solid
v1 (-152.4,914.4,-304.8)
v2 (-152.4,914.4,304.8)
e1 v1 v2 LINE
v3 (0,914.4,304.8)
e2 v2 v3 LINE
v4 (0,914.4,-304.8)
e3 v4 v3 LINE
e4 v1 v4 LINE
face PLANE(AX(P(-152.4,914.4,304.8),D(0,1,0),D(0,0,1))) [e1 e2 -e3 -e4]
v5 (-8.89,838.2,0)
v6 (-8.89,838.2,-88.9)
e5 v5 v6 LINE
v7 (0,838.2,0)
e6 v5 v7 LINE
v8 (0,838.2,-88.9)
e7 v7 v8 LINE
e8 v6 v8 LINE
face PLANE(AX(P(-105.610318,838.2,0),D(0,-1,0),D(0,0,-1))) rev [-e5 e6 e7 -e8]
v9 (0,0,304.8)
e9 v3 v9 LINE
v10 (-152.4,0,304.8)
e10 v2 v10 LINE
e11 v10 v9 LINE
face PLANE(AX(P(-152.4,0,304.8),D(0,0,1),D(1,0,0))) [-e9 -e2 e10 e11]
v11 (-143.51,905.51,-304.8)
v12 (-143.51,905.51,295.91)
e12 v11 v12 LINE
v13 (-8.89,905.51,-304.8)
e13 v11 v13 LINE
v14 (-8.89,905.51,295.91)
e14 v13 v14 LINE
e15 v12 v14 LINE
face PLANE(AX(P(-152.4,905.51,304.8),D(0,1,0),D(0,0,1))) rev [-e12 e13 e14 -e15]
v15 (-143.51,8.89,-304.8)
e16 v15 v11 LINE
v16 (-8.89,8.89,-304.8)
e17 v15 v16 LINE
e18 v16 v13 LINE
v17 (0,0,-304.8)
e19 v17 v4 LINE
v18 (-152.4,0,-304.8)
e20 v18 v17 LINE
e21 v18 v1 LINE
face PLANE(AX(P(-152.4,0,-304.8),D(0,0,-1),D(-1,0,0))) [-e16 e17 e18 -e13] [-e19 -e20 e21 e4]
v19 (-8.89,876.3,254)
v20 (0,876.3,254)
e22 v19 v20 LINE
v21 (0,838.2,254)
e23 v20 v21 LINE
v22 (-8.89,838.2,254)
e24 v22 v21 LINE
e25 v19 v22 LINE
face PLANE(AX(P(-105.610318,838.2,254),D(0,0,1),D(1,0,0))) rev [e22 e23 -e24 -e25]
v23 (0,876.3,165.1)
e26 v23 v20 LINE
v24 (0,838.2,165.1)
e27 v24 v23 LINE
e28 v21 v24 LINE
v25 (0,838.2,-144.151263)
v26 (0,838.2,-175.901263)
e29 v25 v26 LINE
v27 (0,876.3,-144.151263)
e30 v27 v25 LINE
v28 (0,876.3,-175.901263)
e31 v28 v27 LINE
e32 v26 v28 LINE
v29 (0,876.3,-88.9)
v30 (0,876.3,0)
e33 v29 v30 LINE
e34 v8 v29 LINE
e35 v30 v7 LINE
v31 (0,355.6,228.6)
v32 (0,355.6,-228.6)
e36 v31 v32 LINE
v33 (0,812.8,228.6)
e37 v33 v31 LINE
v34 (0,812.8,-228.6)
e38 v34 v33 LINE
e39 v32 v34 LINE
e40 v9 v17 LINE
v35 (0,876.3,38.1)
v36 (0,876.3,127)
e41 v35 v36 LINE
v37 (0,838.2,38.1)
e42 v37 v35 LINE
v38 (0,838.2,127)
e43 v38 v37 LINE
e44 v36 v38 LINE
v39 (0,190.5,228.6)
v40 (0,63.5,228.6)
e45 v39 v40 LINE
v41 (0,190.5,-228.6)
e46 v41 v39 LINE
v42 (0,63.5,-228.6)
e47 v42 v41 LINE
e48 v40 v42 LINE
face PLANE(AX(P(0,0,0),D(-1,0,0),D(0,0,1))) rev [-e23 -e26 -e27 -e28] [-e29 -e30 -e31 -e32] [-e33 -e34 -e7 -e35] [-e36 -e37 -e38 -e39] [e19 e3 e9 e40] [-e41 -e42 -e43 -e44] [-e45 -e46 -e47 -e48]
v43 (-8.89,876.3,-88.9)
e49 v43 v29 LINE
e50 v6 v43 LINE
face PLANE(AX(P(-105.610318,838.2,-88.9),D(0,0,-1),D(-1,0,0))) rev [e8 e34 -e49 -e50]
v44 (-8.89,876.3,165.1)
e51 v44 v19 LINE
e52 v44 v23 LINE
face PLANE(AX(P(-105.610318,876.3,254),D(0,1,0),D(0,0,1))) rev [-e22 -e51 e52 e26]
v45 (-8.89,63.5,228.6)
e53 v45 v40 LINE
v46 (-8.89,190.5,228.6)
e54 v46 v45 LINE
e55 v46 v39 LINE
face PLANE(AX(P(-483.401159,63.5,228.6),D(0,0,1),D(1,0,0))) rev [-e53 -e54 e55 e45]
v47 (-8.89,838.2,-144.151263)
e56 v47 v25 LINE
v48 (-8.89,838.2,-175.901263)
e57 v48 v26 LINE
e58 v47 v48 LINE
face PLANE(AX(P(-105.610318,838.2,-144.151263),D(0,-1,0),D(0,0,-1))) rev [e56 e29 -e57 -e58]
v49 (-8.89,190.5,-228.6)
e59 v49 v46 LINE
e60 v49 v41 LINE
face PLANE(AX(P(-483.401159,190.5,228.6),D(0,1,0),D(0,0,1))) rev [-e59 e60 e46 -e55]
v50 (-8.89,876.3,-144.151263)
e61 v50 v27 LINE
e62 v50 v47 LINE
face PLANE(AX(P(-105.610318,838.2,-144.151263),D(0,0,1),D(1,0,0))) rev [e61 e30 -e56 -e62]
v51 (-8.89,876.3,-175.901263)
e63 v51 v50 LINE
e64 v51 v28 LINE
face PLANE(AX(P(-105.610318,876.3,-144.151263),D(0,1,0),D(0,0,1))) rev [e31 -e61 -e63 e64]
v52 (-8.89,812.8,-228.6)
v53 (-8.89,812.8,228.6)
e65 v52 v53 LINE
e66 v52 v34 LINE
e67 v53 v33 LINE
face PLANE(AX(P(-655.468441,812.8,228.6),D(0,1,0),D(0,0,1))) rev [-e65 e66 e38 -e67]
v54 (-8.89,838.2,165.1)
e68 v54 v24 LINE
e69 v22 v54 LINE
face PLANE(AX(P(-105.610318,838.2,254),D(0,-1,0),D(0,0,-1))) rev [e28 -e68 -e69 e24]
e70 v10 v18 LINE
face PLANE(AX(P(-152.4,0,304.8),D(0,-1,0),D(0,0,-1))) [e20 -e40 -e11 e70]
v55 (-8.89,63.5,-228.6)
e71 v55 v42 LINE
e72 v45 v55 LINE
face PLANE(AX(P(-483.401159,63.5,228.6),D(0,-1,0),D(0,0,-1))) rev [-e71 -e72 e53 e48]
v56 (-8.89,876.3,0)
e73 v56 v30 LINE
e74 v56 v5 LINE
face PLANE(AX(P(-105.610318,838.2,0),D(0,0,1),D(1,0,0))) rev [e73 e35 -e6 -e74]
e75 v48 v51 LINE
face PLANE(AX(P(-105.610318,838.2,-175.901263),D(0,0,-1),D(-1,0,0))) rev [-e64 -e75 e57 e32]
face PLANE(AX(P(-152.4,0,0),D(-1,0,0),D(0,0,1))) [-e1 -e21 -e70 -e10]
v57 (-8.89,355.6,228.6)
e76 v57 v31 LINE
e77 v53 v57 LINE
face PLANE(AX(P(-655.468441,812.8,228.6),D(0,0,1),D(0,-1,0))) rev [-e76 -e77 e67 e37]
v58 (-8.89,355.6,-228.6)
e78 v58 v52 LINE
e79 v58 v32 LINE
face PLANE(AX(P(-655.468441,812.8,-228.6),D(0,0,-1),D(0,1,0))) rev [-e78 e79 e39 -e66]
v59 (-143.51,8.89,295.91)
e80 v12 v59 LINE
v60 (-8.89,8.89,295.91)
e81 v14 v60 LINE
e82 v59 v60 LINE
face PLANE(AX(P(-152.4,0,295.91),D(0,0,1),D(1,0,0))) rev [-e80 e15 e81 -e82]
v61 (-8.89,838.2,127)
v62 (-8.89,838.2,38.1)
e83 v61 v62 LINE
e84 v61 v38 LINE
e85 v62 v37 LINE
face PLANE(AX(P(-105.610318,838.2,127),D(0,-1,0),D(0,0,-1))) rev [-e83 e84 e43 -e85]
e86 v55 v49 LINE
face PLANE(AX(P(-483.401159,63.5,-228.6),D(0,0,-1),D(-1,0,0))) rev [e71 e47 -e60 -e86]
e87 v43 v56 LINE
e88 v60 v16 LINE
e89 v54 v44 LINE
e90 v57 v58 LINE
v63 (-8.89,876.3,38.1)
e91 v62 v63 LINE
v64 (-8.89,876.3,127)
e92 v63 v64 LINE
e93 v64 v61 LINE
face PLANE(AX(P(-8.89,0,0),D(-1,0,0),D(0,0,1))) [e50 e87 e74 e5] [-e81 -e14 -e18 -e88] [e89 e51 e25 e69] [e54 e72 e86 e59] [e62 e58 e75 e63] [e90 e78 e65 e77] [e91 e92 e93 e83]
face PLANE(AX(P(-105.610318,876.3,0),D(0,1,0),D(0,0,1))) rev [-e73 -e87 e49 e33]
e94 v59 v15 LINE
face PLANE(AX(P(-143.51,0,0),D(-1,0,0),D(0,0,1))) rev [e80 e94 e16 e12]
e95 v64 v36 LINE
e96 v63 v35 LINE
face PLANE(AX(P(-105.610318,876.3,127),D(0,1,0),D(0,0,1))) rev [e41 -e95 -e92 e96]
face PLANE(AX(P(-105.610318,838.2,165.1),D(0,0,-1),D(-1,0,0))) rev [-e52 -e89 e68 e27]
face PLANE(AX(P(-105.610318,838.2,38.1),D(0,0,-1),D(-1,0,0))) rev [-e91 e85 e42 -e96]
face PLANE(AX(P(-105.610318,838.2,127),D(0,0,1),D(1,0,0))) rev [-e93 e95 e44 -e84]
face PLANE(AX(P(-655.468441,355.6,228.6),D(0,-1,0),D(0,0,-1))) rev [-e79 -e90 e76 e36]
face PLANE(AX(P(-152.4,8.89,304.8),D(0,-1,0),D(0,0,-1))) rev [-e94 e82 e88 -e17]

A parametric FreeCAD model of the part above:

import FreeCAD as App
import Part
import Sketcher
from FreeCAD import Vector
Q = App.Units.Quantity


def faces_at(feature, points):
    """Names of the faces that lie closest to the given points."""
    faces = feature.Shape.Faces
    near = lambda p: min(range(len(faces)), key=lambda i: faces[i].distToShape(Part.Vertex(*p))[0])
    return sorted({f"Face{near(p) + 1}" for p in points})


def add_polygon(sketch, points):
    """Adds a closed chain of lines whose ends are joined by coincident constraints."""
    first, n = sketch.GeometryCount, len(points)
    for a, b in zip(points, points[1:] + points[:1]):
        sketch.addGeometry(Part.LineSegment(App.Vector(*a, 0), App.Vector(*b, 0)), False)
    for i in range(n):
        sketch.addConstraint(Sketcher.Constraint("Coincident", first + i, 2, first + (i + 1) % n, 1))

doc = App.newDocument("Part")
body = doc.addObject("PartDesign::Body", "Body")

# Sketch on YZ plane
sketch1 = body.newObject("Sketcher::SketchObject", "Sketch")
sketch1.AttachmentSupport = (doc.getObject("YZ_Plane"), [""])
sketch1.MapMode = "FlatFace"
add_polygon(sketch1, [(914, 305), (0, 305), (0, -305), (914, -305)])  # lines 0-3
sketch1.addConstraint([
    Sketcher.Constraint("Horizontal", 0),
    Sketcher.Constraint("Vertical", 1),
    Sketcher.Constraint("Horizontal", 2),
    Sketcher.Constraint("Vertical", 3),
    Sketcher.Constraint("Symmetric", 0, 2, 1, 2, -1, 1),
    Sketcher.Constraint("DistanceX", 0, 2, 0, 1, Q("36 in")),
    Sketcher.Constraint("DistanceY", 1, 2, 1, 1, Q("24 in")),
])
pad1 = body.newObject("PartDesign::Pad", "Pad")
pad1.Profile = sketch1
pad1.Length = Q("6 in")
pad1.Reversed = True
doc.recompute()

thickness = body.newObject("PartDesign::Thickness", "Thickness")
thickness.Base = (pad1, faces_at(pad1, [(-76.2, 457.2, -304.8)]))
thickness.Value = Q("0.35 in")
thickness.Reversed = True
thickness.Join = "Intersection"

# Sketch on YZ plane
sketch2 = body.newObject("Sketcher::SketchObject", "Sketch001")
sketch2.AttachmentSupport = (doc.getObject("YZ_Plane"), [""])
sketch2.MapMode = "FlatFace"
add_polygon(sketch2, [(190, 229), (64, 229), (64, -229), (190, -229)])  # lines 0-3
sketch2.addConstraint([
    Sketcher.Constraint("Horizontal", 0),
    Sketcher.Constraint("Vertical", 1),
    Sketcher.Constraint("Horizontal", 2),
    Sketcher.Constraint("Vertical", 3),
    Sketcher.Constraint("DistanceX", 0, 2, 0, 1, Q("5 in")),
    Sketcher.Constraint("DistanceY", 1, 2, 1, 1, Q("18 in")),
    Sketcher.Constraint("DistanceY", -1, 1, 0, 2, Q("9 in")),
    Sketcher.Constraint("DistanceX", -1, 1, 0, 2, Q("2.5 in")),
])
pocket1 = body.newObject("PartDesign::Pocket", "Pocket")
pocket1.Profile = sketch2
pocket1.Length = Q("0.35 in")

# Sketch on YZ plane
sketch3 = body.newObject("Sketcher::SketchObject", "Sketch002")
sketch3.AttachmentSupport = (doc.getObject("YZ_Plane"), [""])
sketch3.MapMode = "FlatFace"
add_polygon(sketch3, [(813, 229), (356, 229), (356, -229), (813, -229)])  # lines 0-3
sketch3.addConstraint([
    Sketcher.Constraint("Horizontal", 0),
    Sketcher.Constraint("Vertical", 1),
    Sketcher.Constraint("Horizontal", 2),
    Sketcher.Constraint("Vertical", 3),
    Sketcher.Constraint("Equal", 2, 1),
    Sketcher.Constraint("DistanceX", 0, 2, 0, 1, Q("18 in")),
    Sketcher.Constraint("DistanceX", -1, 1, 0, 2, Q("14 in")),
    Sketcher.Constraint("DistanceY", -1, 1, 0, 2, Q("9 in")),
])
pocket2 = body.newObject("PartDesign::Pocket", "Pocket001")
pocket2.Profile = sketch3
pocket2.Length = Q("0.35 in")

# Sketch on YZ plane
sketch4 = body.newObject("Sketcher::SketchObject", "Sketch003")
sketch4.AttachmentSupport = (doc.getObject("YZ_Plane"), [""])
sketch4.MapMode = "FlatFace"
add_polygon(sketch4, [(876, 254), (838, 254), (838, 165), (876, 165)])  # lines 0-3
add_polygon(sketch4, [(876, 127), (838, 127), (838, 38), (876, 38)])  # lines 4-7
add_polygon(sketch4, [(876, 0), (838, 0), (838, -89), (876, -89)])  # lines 8-11
add_polygon(sketch4, [(876, -144), (838, -144), (838, -176), (876, -176)])  # lines 12-15
sketch4.addConstraint([
    Sketcher.Constraint("Horizontal", 0),
    Sketcher.Constraint("Vertical", 1),
    Sketcher.Constraint("Horizontal", 2),
    Sketcher.Constraint("Vertical", 3),
    Sketcher.Constraint("Horizontal", 4),
    Sketcher.Constraint("Vertical", 5),
    Sketcher.Constraint("Horizontal", 6),
    Sketcher.Constraint("Vertical", 7),
    Sketcher.Constraint("Horizontal", 8),
    Sketcher.Constraint("Vertical", 9),
    Sketcher.Constraint("Horizontal", 10),
    Sketcher.Constraint("Vertical", 11),
    Sketcher.Constraint("Horizontal", 12),
    Sketcher.Constraint("Vertical", 13),
    Sketcher.Constraint("Horizontal", 14),
    Sketcher.Constraint("Vertical", 15),
    Sketcher.Constraint("PointOnObject", 8, 2, -1),
    Sketcher.Constraint("Vertical", 1, 2, 4, 2),
    Sketcher.Constraint("Vertical", 3, 2, 6, 2),
    Sketcher.Constraint("Vertical", 5, 2, 8, 2),
    Sketcher.Constraint("Vertical", 7, 2, 10, 2),
    Sketcher.Constraint("Vertical", 9, 2, 12, 2),
    Sketcher.Constraint("Vertical", 11, 2, 14, 2),
    Sketcher.Constraint("Equal", 3, 5),
    Sketcher.Constraint("Equal", 7, 9),
    Sketcher.Constraint("DistanceX", 0, 2, 0, 1, Q("1.5 in")),
    Sketcher.Constraint("DistanceY", 1, 2, 1, 1, Q("3.5 in")),
    Sketcher.Constraint("DistanceX", -1, 1, 0, 2, Q("33 in")),
    Sketcher.Constraint("DistanceY", -1, 1, 0, 2, Q("10 in")),
    Sketcher.Constraint("DistanceY", -1, 1, 4, 2, Q("5 in")),
    Sketcher.Constraint("DistanceY", 13, 2, 13, 1, Q("1.25 in")),
    Sketcher.Constraint("DistanceY", 12, 2, -1, 1, Q("144.151263 mm")),
])
pocket3 = body.newObject("PartDesign::Pocket", "Pocket002")
pocket3.Profile = sketch4
pocket3.Length = Q("0.35 in")

doc.recompute()
